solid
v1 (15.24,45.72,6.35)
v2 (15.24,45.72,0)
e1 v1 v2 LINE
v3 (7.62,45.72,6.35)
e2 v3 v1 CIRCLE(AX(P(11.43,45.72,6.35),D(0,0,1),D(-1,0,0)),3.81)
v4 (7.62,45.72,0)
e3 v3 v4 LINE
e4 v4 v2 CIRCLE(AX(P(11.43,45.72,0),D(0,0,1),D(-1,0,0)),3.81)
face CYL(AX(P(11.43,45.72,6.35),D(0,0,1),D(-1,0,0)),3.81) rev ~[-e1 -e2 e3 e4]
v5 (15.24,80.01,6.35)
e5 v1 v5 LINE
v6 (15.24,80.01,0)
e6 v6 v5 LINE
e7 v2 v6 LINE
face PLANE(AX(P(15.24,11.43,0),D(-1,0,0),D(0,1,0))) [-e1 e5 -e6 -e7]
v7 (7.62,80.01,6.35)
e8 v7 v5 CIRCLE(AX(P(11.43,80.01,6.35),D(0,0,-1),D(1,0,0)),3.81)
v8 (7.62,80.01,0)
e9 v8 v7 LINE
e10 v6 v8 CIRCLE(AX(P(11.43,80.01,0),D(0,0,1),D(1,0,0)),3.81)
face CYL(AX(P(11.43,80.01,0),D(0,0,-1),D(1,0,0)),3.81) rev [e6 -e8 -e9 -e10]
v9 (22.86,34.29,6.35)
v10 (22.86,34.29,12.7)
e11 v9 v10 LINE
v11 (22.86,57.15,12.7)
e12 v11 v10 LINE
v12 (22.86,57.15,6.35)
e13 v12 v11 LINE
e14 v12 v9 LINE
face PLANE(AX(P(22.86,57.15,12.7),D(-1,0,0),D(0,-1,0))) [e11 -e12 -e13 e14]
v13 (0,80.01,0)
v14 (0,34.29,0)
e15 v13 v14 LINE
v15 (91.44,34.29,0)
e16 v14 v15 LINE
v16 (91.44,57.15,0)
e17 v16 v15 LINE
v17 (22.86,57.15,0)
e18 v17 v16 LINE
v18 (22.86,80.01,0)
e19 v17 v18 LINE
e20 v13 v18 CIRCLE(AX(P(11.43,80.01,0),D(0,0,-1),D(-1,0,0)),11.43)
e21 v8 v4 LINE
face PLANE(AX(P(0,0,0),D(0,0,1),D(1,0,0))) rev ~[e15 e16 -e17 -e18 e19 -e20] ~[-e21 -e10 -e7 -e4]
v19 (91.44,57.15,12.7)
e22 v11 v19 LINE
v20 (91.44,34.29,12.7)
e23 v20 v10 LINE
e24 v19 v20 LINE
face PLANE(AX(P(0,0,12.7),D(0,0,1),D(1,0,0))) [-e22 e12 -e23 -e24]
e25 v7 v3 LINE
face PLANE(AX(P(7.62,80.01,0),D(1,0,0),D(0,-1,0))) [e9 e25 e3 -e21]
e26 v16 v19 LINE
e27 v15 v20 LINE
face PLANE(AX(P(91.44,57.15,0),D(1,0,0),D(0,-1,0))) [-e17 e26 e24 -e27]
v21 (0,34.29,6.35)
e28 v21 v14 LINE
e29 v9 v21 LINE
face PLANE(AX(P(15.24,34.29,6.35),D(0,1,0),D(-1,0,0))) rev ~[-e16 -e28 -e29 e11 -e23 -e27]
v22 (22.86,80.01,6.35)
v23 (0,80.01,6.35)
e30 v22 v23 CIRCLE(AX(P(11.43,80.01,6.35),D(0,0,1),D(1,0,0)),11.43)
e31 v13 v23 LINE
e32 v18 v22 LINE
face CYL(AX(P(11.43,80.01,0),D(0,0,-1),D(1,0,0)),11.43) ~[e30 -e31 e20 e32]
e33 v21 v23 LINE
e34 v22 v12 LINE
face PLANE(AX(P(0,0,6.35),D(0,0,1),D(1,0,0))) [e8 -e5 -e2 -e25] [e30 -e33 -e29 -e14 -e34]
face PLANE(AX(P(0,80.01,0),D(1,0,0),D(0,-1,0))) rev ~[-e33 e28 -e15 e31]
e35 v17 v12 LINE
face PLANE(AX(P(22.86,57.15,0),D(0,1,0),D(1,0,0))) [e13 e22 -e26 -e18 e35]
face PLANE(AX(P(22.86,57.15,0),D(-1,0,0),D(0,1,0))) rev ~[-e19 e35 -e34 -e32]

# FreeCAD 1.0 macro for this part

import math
import FreeCAD as App
import Part
import Sketcher
Q = App.Units.Quantity

doc = App.newDocument("Part")
body = doc.addObject("PartDesign::Body", "Body")

# Sketch on XY plane
sketch1 = body.newObject("Sketcher::SketchObject", "Sketch")
sketch1.AttachmentSupport = (doc.getObject("XY_Plane"), [""])
sketch1.MapMode = "FlatFace"
sketch1.addGeometry([
    Part.ArcOfCircle(Part.Circle(App.Vector(11.4, 11.4, 0), App.Vector(0, 0, 1), 11.4), math.radians(180), math.radians(360)),  # 0
    Part.LineSegment(App.Vector(22.9, 11.4, 0), App.Vector(22.9, 34.3, 0)),  # 1
    Part.LineSegment(App.Vector(22.9, 34.3, 0), App.Vector(91.4, 34.3, 0)),  # 2
    Part.LineSegment(App.Vector(91.4, 34.3, 0), App.Vector(91.4, 57.1, 0)),  # 3
    Part.LineSegment(App.Vector(91.4, 57.1, 0), App.Vector(22.9, 57.1, 0)),  # 4
    Part.LineSegment(App.Vector(22.9, 57.1, 0), App.Vector(22.9, 80, 0)),  # 5
    Part.ArcOfCircle(Part.Circle(App.Vector(11.4, 80, 0), App.Vector(0, 0, 1), 11.4), math.radians(0), math.radians(180)),  # 6
    Part.LineSegment(App.Vector(0, 80, 0), App.Vector(0, 11.4, 0)),  # 7
    Part.LineSegment(App.Vector(7.6, 11.4, 0), App.Vector(7.6, 80, 0)),  # 8
    Part.ArcOfCircle(Part.Circle(App.Vector(11.4, 80, 0), App.Vector(0, 0, 1), 3.8), math.radians(0), math.radians(180)),  # 9
    Part.LineSegment(App.Vector(15.2, 80, 0), App.Vector(15.2, 11.4, 0)),  # 10
    Part.ArcOfCircle(Part.Circle(App.Vector(11.4, 11.4, 0), App.Vector(0, 0, 1), 3.8), math.radians(180), math.radians(360)),  # 11
], False)
sketch1.addConstraint([
    Sketcher.Constraint("Tangent", 0, 2, 1, 1),
    Sketcher.Constraint("Coincident", 1, 2, 2, 1),
    Sketcher.Constraint("Coincident", 2, 2, 3, 1),
    Sketcher.Constraint("Coincident", 3, 2, 4, 1),
    Sketcher.Constraint("Coincident", 4, 2, 5, 1),
    Sketcher.Constraint("Tangent", 5, 2, 6, 1),
    Sketcher.Constraint("Tangent", 6, 2, 7, 1),
    Sketcher.Constraint("Tangent", 7, 2, 0, 1),
    Sketcher.Constraint("Tangent", 8, 2, 9, 2),
    Sketcher.Constraint("Tangent", 9, 1, 10, 1),
    Sketcher.Constraint("Tangent", 10, 2, 11, 2),
    Sketcher.Constraint("Tangent", 11, 1, 8, 1),
    Sketcher.Constraint("Vertical", 1),
    Sketcher.Constraint("Horizontal", 2),
    Sketcher.Constraint("Vertical", 3),
    Sketcher.Constraint("Horizontal", 4),
    Sketcher.Constraint("Vertical", 5),
    Sketcher.Constraint("Vertical", 7),
    Sketcher.Constraint("Vertical", 8),
    Sketcher.Constraint("Vertical", 10),
    Sketcher.Constraint("Coincident", 9, 3, 6, 3),
    Sketcher.Constraint("Coincident", 11, 3, 0, 3),
    Sketcher.Constraint("PointOnObject", 6, 2, -2),
    Sketcher.Constraint("Equal", 1, 3),
    Sketcher.Constraint("Equal", 3, 5),
    Sketcher.Constraint("Equal", 4, 7),
    Sketcher.Constraint("Radius", 0, Q("0.45 in")),
    Sketcher.Constraint("Radius", 9, Q("0.15 in")),
    Sketcher.Constraint("DistanceX", 2, 1, 2, 2, Q("2.7 in")),
    Sketcher.Constraint("DistanceY", -1, 1, 0, 3, Q("0.45 in")),
])
pad1 = body.newObject("PartDesign::Pad", "Pad")
pad1.Profile = sketch1
pad1.Length = Q("0.5 in")

# Sketch on XY plane
sketch2 = body.newObject("Sketcher::SketchObject", "Sketch001")
sketch2.AttachmentSupport = (doc.getObject("XY_Plane"), [""])
sketch2.MapMode = "FlatFace"
sketch2.AttachmentOffset = App.Placement(App.Vector(0, 0, 0.5 * 25.4), App.Rotation())
sketch2.addGeometry([
    Part.ArcOfCircle(Part.Circle(App.Vector(11, 11, 0), App.Vector(0, 0, 1), 11), math.radians(180), math.radians(360)),
    Part.LineSegment(App.Vector(23, 11, 0), App.Vector(23, 80, 0)),
    Part.ArcOfCircle(Part.Circle(App.Vector(11, 80, 0), App.Vector(0, 0, 1), 11), math.radians(0), math.radians(180)),
    Part.LineSegment(App.Vector(0, 80, 0), App.Vector(0, 11, 0)),
], False)
sketch2.addConstraint([
    Sketcher.Constraint("Tangent", 0, 2, 1, 1),
    Sketcher.Constraint("Tangent", 1, 2, 2, 1),
    Sketcher.Constraint("Tangent", 2, 2, 3, 1),
    Sketcher.Constraint("Tangent", 3, 2, 0, 1),
    Sketcher.Constraint("Vertical", 1),
    Sketcher.Constraint("Vertical", 3),
    Sketcher.Constraint("PointOnObject", 2, 2, -2),
    Sketcher.Constraint("Radius", 0, Q("0.45 in")),
    Sketcher.Constraint("DistanceY", 1, 1, 1, 2, Q("2.7 in")),
    Sketcher.Constraint("DistanceY", -1, 1, 0, 3, Q("0.45 in")),
])
pocket1 = body.newObject("PartDesign::Pocket", "Pocket")
pocket1.Profile = sketch2
pocket1.Length = Q("0.25 in")

# Sketch on XY plane
sketch3 = body.newObject("Sketcher::SketchObject", "Sketch002")
sketch3.AttachmentSupport = (doc.getObject("XY_Plane"), [""])
sketch3.MapMode = "FlatFace"
sketch3.AttachmentOffset = App.Placement(App.Vector(0, 0, 0.25 * 25.4), App.Rotation())
sketch3.addGeometry([
    Part.LineSegment(App.Vector(23, 11, 0), App.Vector(23, 34, 0)),
    Part.LineSegment(App.Vector(23, 34, 0), App.Vector(0, 34, 0)),
    Part.LineSegment(App.Vector(0, 34, 0), App.Vector(0, 11, 0)),
    Part.ArcOfCircle(Part.Circle(App.Vector(11, 11, 0), App.Vector(0, 0, 1), 11), math.radians(180), math.radians(360)),
], False)
sketch3.addConstraint([
    Sketcher.Constraint("Coincident", 0, 2, 1, 1),
    Sketcher.Constraint("Coincident", 1, 2, 2, 1),
    Sketcher.Constraint("Tangent", 2, 2, 3, 1),
    Sketcher.Constraint("Tangent", 3, 2, 0, 1),
    Sketcher.Constraint("Vertical", 0),
    Sketcher.Constraint("Horizontal", 1),
    Sketcher.Constraint("Vertical", 2),
    Sketcher.Constraint("PointOnObject", 1, 2, -2),
    Sketcher.Constraint("Equal", 1, 0),
    Sketcher.Constraint("Radius", 3, Q("0.45 in")),
    Sketcher.Constraint("DistanceY", -1, 1, 3, 3, Q("0.45 in")),
])
pocket2 = body.newObject("PartDesign::Pocket", "Pocket001")
pocket2.Profile = sketch3
pocket2.Length = Q("4.25 in")

# Sketch on XY plane
sketch4 = body.newObject("Sketcher::SketchObject", "Sketch003")
sketch4.AttachmentSupport = (doc.getObject("XY_Plane"), [""])
sketch4.MapMode = "FlatFace"
sketch4.AttachmentOffset = App.Placement(App.Vector(0, 0, 0.25 * 25.4), App.Rotation())
sketch4.addGeometry([
    Part.LineSegment(App.Vector(7.6, 34.3, 0), App.Vector(15.2, 34.3, 0)),
    Part.LineSegment(App.Vector(15.2, 34.3, 0), App.Vector(15.2, 45.7, 0)),
    Part.ArcOfCircle(Part.Circle(App.Vector(11.4, 45.7, 0), App.Vector(0, 0, 1), 3.8), math.radians(180), math.radians(360)),
    Part.LineSegment(App.Vector(7.6, 45.7, 0), App.Vector(7.6, 34.3, 0)),
], False)
sketch4.addConstraint([
    Sketcher.Constraint("Coincident", 0, 2, 1, 1),
    Sketcher.Constraint("Tangent", 1, 2, 2, 2),
    Sketcher.Constraint("Tangent", 2, 1, 3, 1),
    Sketcher.Constraint("Coincident", 3, 2, 0, 1),
    Sketcher.Constraint("Horizontal", 0),
    Sketcher.Constraint("Vertical", 1),
    Sketcher.Constraint("Vertical", 3),
    Sketcher.Constraint("Radius", 2, Q("0.15 in")),
    Sketcher.Constraint("DistanceX", -1, 1, 2, 1, Q("0.3 in")),
    Sketcher.Constraint("DistanceY", 1, 1, 1, 2, Q("0.45 in")),
    Sketcher.Constraint("DistanceY", -1, 1, 2, 3, Q("1.8 in")),
])
pad2 = body.newObject("PartDesign::Pad", "Pad001")
pad2.Profile = sketch4
pad2.Length = Q("0.25 in")
pad2.Reversed = True

doc.recompute()
